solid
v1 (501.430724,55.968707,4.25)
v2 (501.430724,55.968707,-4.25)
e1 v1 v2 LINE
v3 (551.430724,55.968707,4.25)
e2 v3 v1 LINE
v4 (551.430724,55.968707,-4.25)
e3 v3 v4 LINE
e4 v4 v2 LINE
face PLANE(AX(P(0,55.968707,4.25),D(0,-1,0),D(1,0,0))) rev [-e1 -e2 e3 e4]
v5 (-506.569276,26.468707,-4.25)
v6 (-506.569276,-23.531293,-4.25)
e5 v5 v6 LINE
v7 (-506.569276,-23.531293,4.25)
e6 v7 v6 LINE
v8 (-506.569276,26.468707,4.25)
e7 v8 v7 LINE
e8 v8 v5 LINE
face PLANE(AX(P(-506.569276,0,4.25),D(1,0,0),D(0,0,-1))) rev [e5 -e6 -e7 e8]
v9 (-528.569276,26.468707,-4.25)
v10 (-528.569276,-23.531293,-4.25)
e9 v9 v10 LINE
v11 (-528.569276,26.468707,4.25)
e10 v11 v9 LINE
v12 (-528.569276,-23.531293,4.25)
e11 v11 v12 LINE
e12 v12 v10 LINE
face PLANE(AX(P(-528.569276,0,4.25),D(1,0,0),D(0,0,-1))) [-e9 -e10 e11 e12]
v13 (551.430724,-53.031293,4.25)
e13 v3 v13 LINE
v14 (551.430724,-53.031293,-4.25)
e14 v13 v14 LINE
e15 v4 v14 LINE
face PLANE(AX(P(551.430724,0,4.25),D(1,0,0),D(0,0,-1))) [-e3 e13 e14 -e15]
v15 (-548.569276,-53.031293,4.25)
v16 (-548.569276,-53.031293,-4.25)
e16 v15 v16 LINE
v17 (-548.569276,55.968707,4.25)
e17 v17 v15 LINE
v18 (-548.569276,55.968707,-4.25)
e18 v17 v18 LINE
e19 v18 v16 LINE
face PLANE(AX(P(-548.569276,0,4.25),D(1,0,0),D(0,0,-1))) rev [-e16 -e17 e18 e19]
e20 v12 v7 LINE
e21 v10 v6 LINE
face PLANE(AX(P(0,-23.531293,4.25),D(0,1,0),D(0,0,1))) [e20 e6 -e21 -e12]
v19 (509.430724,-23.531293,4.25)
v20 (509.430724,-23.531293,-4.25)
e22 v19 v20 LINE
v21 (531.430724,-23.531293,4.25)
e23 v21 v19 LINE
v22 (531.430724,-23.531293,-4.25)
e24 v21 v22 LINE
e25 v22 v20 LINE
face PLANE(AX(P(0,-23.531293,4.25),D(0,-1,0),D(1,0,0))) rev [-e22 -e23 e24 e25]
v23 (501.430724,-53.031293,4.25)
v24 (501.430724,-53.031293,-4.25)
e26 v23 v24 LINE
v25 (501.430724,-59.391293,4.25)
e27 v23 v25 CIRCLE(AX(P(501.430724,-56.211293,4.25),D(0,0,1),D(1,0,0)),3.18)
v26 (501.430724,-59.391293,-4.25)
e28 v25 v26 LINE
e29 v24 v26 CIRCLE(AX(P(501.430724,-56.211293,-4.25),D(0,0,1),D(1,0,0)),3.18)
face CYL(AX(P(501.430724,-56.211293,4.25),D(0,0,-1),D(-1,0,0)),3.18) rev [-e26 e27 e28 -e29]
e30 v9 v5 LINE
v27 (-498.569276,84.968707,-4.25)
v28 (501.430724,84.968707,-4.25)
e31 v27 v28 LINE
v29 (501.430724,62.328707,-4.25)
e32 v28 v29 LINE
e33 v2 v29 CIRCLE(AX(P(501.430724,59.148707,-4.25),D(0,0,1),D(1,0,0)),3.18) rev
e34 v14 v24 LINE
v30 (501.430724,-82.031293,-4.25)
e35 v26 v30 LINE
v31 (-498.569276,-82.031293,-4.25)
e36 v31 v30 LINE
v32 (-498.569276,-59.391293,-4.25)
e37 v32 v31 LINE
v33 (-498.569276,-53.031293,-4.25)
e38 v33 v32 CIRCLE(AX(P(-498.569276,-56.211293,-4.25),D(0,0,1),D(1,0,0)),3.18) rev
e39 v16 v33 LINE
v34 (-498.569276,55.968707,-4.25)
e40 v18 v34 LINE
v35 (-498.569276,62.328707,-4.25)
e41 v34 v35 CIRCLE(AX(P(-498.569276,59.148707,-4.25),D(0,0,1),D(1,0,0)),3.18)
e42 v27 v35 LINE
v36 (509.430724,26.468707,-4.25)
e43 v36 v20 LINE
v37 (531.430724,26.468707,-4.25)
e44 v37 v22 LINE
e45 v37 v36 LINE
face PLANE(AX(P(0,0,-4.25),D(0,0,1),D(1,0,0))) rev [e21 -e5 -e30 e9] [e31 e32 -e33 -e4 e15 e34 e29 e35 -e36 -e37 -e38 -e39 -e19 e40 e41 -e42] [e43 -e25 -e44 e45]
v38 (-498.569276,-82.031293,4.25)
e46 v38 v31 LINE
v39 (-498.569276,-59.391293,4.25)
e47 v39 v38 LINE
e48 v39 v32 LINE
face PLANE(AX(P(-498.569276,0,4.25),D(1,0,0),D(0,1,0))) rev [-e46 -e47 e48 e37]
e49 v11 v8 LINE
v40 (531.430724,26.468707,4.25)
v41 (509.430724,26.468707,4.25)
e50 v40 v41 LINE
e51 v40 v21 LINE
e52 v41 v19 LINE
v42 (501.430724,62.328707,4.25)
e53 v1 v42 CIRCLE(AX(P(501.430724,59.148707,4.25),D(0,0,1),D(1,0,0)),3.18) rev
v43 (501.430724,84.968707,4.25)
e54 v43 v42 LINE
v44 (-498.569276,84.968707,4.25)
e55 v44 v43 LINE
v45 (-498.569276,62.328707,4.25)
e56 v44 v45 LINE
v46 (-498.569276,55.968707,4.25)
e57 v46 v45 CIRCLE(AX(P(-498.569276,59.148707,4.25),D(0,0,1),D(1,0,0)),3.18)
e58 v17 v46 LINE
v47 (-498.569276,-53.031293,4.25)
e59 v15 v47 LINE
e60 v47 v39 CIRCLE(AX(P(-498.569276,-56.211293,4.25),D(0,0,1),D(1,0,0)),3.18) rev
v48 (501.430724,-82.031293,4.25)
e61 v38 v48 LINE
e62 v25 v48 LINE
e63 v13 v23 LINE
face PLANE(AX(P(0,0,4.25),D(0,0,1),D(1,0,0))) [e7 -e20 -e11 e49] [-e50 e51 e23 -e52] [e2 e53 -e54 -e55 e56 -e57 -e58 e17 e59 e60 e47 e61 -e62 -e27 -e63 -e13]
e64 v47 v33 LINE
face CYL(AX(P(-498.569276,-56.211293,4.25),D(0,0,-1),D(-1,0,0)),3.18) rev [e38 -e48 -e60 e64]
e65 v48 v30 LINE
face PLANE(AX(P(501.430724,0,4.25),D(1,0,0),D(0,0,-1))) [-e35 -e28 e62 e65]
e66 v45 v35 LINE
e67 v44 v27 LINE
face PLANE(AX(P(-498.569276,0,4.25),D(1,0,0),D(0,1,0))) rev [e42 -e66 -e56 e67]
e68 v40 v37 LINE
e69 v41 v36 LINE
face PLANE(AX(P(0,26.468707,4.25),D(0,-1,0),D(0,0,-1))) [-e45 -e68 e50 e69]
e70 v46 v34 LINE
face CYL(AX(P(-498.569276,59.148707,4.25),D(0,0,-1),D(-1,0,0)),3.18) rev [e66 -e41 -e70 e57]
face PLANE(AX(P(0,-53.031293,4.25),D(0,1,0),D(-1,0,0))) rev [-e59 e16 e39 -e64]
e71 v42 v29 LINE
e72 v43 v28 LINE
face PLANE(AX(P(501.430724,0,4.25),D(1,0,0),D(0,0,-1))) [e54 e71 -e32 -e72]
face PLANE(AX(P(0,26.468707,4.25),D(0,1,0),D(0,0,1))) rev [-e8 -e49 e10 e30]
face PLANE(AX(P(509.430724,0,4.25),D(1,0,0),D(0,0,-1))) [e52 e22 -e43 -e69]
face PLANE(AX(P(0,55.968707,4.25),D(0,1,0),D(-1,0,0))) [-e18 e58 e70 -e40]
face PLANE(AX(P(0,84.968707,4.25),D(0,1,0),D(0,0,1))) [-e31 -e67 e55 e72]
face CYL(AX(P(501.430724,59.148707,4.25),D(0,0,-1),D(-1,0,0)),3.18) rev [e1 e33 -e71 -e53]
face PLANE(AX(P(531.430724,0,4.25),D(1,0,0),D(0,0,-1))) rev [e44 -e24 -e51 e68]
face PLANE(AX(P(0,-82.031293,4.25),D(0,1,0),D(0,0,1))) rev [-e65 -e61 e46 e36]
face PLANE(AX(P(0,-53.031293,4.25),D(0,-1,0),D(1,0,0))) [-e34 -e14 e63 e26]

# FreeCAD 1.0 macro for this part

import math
import FreeCAD as App
import Part
import Sketcher
from FreeCAD import Vector
Q = App.Units.Quantity

doc = App.newDocument("Part")
body = doc.addObject("PartDesign::Body", "Body")

# Sketch on XY plane
sketch1 = body.newObject("Sketcher::SketchObject", "Sketch")
sketch1.AttachmentSupport = (doc.getObject("XY_Plane"), [""])
sketch1.MapMode = "FlatFace"
sketch1.addGeometry([
    Part.LineSegment(Vector(501.430724, 84.968707, 0), Vector(-498.569276, 84.968707, 0)),  # 0
    Part.LineSegment(Vector(-498.569276, 84.968707, 0), Vector(-498.569276, 62.328707, 0)),  # 1
    Part.ArcOfCircle(Part.Circle(Vector(-498.569276, 59.148707, 0), Vector(0, 0, 1), 3.18), math.radians(-90), math.radians(90)),  # 2
    Part.LineSegment(Vector(-498.569276, 55.968707, 0), Vector(-548.569276, 55.968707, 0)),  # 3
    Part.LineSegment(Vector(-548.569276, 55.968707, 0), Vector(-548.569276, -53.031293, 0)),  # 4
    Part.LineSegment(Vector(-548.569276, -53.031293, 0), Vector(-498.569276, -53.031293, 0)),  # 5
    Part.ArcOfCircle(Part.Circle(Vector(-498.569276, -56.211293, 0), Vector(0, 0, 1), 3.18), math.radians(-90), math.radians(90)),  # 6
    Part.LineSegment(Vector(-498.569276, -59.391293, 0), Vector(-498.569276, -82.031293, 0)),  # 7
    Part.LineSegment(Vector(-498.569276, -82.031293, 0), Vector(501.430724, -82.031293, 0)),  # 8
    Part.LineSegment(Vector(501.430724, -82.031293, 0), Vector(501.430724, -59.391293, 0)),  # 9
    Part.ArcOfCircle(Part.Circle(Vector(501.430724, -56.211293, 0), Vector(0, 0, 1), 3.18), math.radians(90), math.radians(270)),  # 10
    Part.LineSegment(Vector(501.430724, -53.031293, 0), Vector(551.430724, -53.031293, 0)),  # 11
    Part.LineSegment(Vector(551.430724, -53.031293, 0), Vector(551.430724, 55.968707, 0)),  # 12
    Part.LineSegment(Vector(551.430724, 55.968707, 0), Vector(501.430724, 55.968707, 0)),  # 13
    Part.ArcOfCircle(Part.Circle(Vector(501.430724, 59.148707, 0), Vector(0, 0, 1), 3.18), math.radians(90), math.radians(270)),  # 14
    Part.LineSegment(Vector(501.430724, 62.328707, 0), Vector(501.430724, 84.968707, 0)),  # 15
    Part.LineSegment(Vector(509.430724, -23.531293, 0), Vector(509.430724, 26.468707, 0)),  # 16
    Part.LineSegment(Vector(509.430724, 26.468707, 0), Vector(531.430724, 26.468707, 0)),  # 17
    Part.LineSegment(Vector(531.430724, 26.468707, 0), Vector(531.430724, -23.531293, 0)),  # 18
    Part.LineSegment(Vector(531.430724, -23.531293, 0), Vector(509.430724, -23.531293, 0)),  # 19
    Part.LineSegment(Vector(-528.569276, -23.531293, 0), Vector(-528.569276, 26.468707, 0)),  # 20
    Part.LineSegment(Vector(-528.569276, 26.468707, 0), Vector(-506.569276, 26.468707, 0)),  # 21
    Part.LineSegment(Vector(-506.569276, 26.468707, 0), Vector(-506.569276, -23.531293, 0)),  # 22
    Part.LineSegment(Vector(-506.569276, -23.531293, 0), Vector(-528.569276, -23.531293, 0)),  # 23
], False)
sketch1.addConstraint([
    Sketcher.Constraint("Coincident", 0, 2, 1, 1),
    Sketcher.Constraint("Coincident", 1, 2, 2, 2),
    Sketcher.Constraint("Tangent", 2, 1, 3, 1),
    Sketcher.Constraint("Coincident", 3, 2, 4, 1),
    Sketcher.Constraint("Coincident", 4, 2, 5, 1),
    Sketcher.Constraint("Tangent", 5, 2, 6, 2),
    Sketcher.Constraint("Coincident", 6, 1, 7, 1),
    Sketcher.Constraint("Coincident", 7, 2, 8, 1),
    Sketcher.Constraint("Coincident", 8, 2, 9, 1),
    Sketcher.Constraint("Coincident", 9, 2, 10, 2),
    Sketcher.Constraint("Tangent", 10, 1, 11, 1),
    Sketcher.Constraint("Coincident", 11, 2, 12, 1),
    Sketcher.Constraint("Coincident", 12, 2, 13, 1),
    Sketcher.Constraint("Tangent", 13, 2, 14, 2),
    Sketcher.Constraint("Coincident", 14, 1, 15, 1),
    Sketcher.Constraint("Coincident", 15, 2, 0, 1),
    Sketcher.Constraint("Coincident", 16, 2, 17, 1),
    Sketcher.Constraint("Coincident", 17, 2, 18, 1),
    Sketcher.Constraint("Coincident", 18, 2, 19, 1),
    Sketcher.Constraint("Coincident", 19, 2, 16, 1),
    Sketcher.Constraint("Coincident", 20, 2, 21, 1),
    Sketcher.Constraint("Coincident", 21, 2, 22, 1),
    Sketcher.Constraint("Coincident", 22, 2, 23, 1),
    Sketcher.Constraint("Coincident", 23, 2, 20, 1),
    Sketcher.Constraint("Horizontal", 0),
    Sketcher.Constraint("Vertical", 1),
    Sketcher.Constraint("Horizontal", 3),
    Sketcher.Constraint("Vertical", 4),
    Sketcher.Constraint("Horizontal", 5),
    Sketcher.Constraint("Vertical", 7),
    Sketcher.Constraint("Horizontal", 8),
    Sketcher.Constraint("Vertical", 9),
    Sketcher.Constraint("Horizontal", 11),
    Sketcher.Constraint("Vertical", 12),
    Sketcher.Constraint("Horizontal", 13),
    Sketcher.Constraint("Vertical", 15),
    Sketcher.Constraint("Vertical", 16),
    Sketcher.Constraint("Horizontal", 17),
    Sketcher.Constraint("Vertical", 18),
    Sketcher.Constraint("Horizontal", 19),
    Sketcher.Constraint("Vertical", 20),
    Sketcher.Constraint("Horizontal", 21),
    Sketcher.Constraint("Vertical", 22),
    Sketcher.Constraint("Horizontal", 23),
    Sketcher.Constraint("Equal", 2, 6),
    Sketcher.Constraint("Equal", 6, 10),
    Sketcher.Constraint("Equal", 10, 14),
    Sketcher.Constraint("Horizontal", 6, 3, 10, 3),
    Sketcher.Constraint("Horizontal", 2, 3, 14, 3),
    Sketcher.Constraint("Horizontal", 17, 2, 20, 2),
    Sketcher.Constraint("Horizontal", 19, 2, 22, 2),
    Sketcher.Constraint("Vertical", 2, 3, 6, 3),
    Sketcher.Constraint("Vertical", 10, 3, 14, 3),
    Sketcher.Constraint("Vertical", 6, 3, 0, 2),
    Sketcher.Constraint("Vertical", 5, 2, 6, 1),
    Sketcher.Constraint("Vertical", 14, 3, 8, 2),
    Sketcher.Constraint("Vertical", 13, 2, 14, 1),
    Sketcher.Constraint("Equal", 5, 11),
    Sketcher.Constraint("Equal", 19, 21),
    Sketcher.Constraint("Equal", 1, 7),
    Sketcher.Constraint("Equal", 13, 16),
    Sketcher.Constraint("DistanceX", 0, 2, 0, 1, Q("1000 mm")),
    Sketcher.Constraint("DistanceX", 3, 2, 3, 1, Q("50 mm")),
    Sketcher.Constraint("DistanceX", 17, 1, 17, 2, Q("22 mm")),
    Sketcher.Constraint("DistanceY", 4, 2, 4, 1, Q("109 mm")),
    Sketcher.Constraint("Radius", 2, Q("3.18 mm")),
    Sketcher.Constraint("DistanceY", 2, 1, 0, 2, Q("29 mm")),
    Sketcher.Constraint("DistanceX", 13, 2, 16, 2, Q("8 mm")),
    Sketcher.Constraint("DistanceX", 3, 2, 20, 2, Q("20 mm")),
    Sketcher.Constraint("DistanceY", 16, 2, 13, 2, Q("29.5 mm")),
    Sketcher.Constraint("DistanceX", 2, 3, -1, 1, Q("498.569276 mm")),
    Sketcher.Constraint("DistanceY", -1, 1, 2, 3, Q("59.148707 mm")),
])
pad1 = body.newObject("PartDesign::Pad", "Pad")
pad1.Profile = sketch1
pad1.Length = 8.5
pad1.Midplane = True

doc.recompute()
